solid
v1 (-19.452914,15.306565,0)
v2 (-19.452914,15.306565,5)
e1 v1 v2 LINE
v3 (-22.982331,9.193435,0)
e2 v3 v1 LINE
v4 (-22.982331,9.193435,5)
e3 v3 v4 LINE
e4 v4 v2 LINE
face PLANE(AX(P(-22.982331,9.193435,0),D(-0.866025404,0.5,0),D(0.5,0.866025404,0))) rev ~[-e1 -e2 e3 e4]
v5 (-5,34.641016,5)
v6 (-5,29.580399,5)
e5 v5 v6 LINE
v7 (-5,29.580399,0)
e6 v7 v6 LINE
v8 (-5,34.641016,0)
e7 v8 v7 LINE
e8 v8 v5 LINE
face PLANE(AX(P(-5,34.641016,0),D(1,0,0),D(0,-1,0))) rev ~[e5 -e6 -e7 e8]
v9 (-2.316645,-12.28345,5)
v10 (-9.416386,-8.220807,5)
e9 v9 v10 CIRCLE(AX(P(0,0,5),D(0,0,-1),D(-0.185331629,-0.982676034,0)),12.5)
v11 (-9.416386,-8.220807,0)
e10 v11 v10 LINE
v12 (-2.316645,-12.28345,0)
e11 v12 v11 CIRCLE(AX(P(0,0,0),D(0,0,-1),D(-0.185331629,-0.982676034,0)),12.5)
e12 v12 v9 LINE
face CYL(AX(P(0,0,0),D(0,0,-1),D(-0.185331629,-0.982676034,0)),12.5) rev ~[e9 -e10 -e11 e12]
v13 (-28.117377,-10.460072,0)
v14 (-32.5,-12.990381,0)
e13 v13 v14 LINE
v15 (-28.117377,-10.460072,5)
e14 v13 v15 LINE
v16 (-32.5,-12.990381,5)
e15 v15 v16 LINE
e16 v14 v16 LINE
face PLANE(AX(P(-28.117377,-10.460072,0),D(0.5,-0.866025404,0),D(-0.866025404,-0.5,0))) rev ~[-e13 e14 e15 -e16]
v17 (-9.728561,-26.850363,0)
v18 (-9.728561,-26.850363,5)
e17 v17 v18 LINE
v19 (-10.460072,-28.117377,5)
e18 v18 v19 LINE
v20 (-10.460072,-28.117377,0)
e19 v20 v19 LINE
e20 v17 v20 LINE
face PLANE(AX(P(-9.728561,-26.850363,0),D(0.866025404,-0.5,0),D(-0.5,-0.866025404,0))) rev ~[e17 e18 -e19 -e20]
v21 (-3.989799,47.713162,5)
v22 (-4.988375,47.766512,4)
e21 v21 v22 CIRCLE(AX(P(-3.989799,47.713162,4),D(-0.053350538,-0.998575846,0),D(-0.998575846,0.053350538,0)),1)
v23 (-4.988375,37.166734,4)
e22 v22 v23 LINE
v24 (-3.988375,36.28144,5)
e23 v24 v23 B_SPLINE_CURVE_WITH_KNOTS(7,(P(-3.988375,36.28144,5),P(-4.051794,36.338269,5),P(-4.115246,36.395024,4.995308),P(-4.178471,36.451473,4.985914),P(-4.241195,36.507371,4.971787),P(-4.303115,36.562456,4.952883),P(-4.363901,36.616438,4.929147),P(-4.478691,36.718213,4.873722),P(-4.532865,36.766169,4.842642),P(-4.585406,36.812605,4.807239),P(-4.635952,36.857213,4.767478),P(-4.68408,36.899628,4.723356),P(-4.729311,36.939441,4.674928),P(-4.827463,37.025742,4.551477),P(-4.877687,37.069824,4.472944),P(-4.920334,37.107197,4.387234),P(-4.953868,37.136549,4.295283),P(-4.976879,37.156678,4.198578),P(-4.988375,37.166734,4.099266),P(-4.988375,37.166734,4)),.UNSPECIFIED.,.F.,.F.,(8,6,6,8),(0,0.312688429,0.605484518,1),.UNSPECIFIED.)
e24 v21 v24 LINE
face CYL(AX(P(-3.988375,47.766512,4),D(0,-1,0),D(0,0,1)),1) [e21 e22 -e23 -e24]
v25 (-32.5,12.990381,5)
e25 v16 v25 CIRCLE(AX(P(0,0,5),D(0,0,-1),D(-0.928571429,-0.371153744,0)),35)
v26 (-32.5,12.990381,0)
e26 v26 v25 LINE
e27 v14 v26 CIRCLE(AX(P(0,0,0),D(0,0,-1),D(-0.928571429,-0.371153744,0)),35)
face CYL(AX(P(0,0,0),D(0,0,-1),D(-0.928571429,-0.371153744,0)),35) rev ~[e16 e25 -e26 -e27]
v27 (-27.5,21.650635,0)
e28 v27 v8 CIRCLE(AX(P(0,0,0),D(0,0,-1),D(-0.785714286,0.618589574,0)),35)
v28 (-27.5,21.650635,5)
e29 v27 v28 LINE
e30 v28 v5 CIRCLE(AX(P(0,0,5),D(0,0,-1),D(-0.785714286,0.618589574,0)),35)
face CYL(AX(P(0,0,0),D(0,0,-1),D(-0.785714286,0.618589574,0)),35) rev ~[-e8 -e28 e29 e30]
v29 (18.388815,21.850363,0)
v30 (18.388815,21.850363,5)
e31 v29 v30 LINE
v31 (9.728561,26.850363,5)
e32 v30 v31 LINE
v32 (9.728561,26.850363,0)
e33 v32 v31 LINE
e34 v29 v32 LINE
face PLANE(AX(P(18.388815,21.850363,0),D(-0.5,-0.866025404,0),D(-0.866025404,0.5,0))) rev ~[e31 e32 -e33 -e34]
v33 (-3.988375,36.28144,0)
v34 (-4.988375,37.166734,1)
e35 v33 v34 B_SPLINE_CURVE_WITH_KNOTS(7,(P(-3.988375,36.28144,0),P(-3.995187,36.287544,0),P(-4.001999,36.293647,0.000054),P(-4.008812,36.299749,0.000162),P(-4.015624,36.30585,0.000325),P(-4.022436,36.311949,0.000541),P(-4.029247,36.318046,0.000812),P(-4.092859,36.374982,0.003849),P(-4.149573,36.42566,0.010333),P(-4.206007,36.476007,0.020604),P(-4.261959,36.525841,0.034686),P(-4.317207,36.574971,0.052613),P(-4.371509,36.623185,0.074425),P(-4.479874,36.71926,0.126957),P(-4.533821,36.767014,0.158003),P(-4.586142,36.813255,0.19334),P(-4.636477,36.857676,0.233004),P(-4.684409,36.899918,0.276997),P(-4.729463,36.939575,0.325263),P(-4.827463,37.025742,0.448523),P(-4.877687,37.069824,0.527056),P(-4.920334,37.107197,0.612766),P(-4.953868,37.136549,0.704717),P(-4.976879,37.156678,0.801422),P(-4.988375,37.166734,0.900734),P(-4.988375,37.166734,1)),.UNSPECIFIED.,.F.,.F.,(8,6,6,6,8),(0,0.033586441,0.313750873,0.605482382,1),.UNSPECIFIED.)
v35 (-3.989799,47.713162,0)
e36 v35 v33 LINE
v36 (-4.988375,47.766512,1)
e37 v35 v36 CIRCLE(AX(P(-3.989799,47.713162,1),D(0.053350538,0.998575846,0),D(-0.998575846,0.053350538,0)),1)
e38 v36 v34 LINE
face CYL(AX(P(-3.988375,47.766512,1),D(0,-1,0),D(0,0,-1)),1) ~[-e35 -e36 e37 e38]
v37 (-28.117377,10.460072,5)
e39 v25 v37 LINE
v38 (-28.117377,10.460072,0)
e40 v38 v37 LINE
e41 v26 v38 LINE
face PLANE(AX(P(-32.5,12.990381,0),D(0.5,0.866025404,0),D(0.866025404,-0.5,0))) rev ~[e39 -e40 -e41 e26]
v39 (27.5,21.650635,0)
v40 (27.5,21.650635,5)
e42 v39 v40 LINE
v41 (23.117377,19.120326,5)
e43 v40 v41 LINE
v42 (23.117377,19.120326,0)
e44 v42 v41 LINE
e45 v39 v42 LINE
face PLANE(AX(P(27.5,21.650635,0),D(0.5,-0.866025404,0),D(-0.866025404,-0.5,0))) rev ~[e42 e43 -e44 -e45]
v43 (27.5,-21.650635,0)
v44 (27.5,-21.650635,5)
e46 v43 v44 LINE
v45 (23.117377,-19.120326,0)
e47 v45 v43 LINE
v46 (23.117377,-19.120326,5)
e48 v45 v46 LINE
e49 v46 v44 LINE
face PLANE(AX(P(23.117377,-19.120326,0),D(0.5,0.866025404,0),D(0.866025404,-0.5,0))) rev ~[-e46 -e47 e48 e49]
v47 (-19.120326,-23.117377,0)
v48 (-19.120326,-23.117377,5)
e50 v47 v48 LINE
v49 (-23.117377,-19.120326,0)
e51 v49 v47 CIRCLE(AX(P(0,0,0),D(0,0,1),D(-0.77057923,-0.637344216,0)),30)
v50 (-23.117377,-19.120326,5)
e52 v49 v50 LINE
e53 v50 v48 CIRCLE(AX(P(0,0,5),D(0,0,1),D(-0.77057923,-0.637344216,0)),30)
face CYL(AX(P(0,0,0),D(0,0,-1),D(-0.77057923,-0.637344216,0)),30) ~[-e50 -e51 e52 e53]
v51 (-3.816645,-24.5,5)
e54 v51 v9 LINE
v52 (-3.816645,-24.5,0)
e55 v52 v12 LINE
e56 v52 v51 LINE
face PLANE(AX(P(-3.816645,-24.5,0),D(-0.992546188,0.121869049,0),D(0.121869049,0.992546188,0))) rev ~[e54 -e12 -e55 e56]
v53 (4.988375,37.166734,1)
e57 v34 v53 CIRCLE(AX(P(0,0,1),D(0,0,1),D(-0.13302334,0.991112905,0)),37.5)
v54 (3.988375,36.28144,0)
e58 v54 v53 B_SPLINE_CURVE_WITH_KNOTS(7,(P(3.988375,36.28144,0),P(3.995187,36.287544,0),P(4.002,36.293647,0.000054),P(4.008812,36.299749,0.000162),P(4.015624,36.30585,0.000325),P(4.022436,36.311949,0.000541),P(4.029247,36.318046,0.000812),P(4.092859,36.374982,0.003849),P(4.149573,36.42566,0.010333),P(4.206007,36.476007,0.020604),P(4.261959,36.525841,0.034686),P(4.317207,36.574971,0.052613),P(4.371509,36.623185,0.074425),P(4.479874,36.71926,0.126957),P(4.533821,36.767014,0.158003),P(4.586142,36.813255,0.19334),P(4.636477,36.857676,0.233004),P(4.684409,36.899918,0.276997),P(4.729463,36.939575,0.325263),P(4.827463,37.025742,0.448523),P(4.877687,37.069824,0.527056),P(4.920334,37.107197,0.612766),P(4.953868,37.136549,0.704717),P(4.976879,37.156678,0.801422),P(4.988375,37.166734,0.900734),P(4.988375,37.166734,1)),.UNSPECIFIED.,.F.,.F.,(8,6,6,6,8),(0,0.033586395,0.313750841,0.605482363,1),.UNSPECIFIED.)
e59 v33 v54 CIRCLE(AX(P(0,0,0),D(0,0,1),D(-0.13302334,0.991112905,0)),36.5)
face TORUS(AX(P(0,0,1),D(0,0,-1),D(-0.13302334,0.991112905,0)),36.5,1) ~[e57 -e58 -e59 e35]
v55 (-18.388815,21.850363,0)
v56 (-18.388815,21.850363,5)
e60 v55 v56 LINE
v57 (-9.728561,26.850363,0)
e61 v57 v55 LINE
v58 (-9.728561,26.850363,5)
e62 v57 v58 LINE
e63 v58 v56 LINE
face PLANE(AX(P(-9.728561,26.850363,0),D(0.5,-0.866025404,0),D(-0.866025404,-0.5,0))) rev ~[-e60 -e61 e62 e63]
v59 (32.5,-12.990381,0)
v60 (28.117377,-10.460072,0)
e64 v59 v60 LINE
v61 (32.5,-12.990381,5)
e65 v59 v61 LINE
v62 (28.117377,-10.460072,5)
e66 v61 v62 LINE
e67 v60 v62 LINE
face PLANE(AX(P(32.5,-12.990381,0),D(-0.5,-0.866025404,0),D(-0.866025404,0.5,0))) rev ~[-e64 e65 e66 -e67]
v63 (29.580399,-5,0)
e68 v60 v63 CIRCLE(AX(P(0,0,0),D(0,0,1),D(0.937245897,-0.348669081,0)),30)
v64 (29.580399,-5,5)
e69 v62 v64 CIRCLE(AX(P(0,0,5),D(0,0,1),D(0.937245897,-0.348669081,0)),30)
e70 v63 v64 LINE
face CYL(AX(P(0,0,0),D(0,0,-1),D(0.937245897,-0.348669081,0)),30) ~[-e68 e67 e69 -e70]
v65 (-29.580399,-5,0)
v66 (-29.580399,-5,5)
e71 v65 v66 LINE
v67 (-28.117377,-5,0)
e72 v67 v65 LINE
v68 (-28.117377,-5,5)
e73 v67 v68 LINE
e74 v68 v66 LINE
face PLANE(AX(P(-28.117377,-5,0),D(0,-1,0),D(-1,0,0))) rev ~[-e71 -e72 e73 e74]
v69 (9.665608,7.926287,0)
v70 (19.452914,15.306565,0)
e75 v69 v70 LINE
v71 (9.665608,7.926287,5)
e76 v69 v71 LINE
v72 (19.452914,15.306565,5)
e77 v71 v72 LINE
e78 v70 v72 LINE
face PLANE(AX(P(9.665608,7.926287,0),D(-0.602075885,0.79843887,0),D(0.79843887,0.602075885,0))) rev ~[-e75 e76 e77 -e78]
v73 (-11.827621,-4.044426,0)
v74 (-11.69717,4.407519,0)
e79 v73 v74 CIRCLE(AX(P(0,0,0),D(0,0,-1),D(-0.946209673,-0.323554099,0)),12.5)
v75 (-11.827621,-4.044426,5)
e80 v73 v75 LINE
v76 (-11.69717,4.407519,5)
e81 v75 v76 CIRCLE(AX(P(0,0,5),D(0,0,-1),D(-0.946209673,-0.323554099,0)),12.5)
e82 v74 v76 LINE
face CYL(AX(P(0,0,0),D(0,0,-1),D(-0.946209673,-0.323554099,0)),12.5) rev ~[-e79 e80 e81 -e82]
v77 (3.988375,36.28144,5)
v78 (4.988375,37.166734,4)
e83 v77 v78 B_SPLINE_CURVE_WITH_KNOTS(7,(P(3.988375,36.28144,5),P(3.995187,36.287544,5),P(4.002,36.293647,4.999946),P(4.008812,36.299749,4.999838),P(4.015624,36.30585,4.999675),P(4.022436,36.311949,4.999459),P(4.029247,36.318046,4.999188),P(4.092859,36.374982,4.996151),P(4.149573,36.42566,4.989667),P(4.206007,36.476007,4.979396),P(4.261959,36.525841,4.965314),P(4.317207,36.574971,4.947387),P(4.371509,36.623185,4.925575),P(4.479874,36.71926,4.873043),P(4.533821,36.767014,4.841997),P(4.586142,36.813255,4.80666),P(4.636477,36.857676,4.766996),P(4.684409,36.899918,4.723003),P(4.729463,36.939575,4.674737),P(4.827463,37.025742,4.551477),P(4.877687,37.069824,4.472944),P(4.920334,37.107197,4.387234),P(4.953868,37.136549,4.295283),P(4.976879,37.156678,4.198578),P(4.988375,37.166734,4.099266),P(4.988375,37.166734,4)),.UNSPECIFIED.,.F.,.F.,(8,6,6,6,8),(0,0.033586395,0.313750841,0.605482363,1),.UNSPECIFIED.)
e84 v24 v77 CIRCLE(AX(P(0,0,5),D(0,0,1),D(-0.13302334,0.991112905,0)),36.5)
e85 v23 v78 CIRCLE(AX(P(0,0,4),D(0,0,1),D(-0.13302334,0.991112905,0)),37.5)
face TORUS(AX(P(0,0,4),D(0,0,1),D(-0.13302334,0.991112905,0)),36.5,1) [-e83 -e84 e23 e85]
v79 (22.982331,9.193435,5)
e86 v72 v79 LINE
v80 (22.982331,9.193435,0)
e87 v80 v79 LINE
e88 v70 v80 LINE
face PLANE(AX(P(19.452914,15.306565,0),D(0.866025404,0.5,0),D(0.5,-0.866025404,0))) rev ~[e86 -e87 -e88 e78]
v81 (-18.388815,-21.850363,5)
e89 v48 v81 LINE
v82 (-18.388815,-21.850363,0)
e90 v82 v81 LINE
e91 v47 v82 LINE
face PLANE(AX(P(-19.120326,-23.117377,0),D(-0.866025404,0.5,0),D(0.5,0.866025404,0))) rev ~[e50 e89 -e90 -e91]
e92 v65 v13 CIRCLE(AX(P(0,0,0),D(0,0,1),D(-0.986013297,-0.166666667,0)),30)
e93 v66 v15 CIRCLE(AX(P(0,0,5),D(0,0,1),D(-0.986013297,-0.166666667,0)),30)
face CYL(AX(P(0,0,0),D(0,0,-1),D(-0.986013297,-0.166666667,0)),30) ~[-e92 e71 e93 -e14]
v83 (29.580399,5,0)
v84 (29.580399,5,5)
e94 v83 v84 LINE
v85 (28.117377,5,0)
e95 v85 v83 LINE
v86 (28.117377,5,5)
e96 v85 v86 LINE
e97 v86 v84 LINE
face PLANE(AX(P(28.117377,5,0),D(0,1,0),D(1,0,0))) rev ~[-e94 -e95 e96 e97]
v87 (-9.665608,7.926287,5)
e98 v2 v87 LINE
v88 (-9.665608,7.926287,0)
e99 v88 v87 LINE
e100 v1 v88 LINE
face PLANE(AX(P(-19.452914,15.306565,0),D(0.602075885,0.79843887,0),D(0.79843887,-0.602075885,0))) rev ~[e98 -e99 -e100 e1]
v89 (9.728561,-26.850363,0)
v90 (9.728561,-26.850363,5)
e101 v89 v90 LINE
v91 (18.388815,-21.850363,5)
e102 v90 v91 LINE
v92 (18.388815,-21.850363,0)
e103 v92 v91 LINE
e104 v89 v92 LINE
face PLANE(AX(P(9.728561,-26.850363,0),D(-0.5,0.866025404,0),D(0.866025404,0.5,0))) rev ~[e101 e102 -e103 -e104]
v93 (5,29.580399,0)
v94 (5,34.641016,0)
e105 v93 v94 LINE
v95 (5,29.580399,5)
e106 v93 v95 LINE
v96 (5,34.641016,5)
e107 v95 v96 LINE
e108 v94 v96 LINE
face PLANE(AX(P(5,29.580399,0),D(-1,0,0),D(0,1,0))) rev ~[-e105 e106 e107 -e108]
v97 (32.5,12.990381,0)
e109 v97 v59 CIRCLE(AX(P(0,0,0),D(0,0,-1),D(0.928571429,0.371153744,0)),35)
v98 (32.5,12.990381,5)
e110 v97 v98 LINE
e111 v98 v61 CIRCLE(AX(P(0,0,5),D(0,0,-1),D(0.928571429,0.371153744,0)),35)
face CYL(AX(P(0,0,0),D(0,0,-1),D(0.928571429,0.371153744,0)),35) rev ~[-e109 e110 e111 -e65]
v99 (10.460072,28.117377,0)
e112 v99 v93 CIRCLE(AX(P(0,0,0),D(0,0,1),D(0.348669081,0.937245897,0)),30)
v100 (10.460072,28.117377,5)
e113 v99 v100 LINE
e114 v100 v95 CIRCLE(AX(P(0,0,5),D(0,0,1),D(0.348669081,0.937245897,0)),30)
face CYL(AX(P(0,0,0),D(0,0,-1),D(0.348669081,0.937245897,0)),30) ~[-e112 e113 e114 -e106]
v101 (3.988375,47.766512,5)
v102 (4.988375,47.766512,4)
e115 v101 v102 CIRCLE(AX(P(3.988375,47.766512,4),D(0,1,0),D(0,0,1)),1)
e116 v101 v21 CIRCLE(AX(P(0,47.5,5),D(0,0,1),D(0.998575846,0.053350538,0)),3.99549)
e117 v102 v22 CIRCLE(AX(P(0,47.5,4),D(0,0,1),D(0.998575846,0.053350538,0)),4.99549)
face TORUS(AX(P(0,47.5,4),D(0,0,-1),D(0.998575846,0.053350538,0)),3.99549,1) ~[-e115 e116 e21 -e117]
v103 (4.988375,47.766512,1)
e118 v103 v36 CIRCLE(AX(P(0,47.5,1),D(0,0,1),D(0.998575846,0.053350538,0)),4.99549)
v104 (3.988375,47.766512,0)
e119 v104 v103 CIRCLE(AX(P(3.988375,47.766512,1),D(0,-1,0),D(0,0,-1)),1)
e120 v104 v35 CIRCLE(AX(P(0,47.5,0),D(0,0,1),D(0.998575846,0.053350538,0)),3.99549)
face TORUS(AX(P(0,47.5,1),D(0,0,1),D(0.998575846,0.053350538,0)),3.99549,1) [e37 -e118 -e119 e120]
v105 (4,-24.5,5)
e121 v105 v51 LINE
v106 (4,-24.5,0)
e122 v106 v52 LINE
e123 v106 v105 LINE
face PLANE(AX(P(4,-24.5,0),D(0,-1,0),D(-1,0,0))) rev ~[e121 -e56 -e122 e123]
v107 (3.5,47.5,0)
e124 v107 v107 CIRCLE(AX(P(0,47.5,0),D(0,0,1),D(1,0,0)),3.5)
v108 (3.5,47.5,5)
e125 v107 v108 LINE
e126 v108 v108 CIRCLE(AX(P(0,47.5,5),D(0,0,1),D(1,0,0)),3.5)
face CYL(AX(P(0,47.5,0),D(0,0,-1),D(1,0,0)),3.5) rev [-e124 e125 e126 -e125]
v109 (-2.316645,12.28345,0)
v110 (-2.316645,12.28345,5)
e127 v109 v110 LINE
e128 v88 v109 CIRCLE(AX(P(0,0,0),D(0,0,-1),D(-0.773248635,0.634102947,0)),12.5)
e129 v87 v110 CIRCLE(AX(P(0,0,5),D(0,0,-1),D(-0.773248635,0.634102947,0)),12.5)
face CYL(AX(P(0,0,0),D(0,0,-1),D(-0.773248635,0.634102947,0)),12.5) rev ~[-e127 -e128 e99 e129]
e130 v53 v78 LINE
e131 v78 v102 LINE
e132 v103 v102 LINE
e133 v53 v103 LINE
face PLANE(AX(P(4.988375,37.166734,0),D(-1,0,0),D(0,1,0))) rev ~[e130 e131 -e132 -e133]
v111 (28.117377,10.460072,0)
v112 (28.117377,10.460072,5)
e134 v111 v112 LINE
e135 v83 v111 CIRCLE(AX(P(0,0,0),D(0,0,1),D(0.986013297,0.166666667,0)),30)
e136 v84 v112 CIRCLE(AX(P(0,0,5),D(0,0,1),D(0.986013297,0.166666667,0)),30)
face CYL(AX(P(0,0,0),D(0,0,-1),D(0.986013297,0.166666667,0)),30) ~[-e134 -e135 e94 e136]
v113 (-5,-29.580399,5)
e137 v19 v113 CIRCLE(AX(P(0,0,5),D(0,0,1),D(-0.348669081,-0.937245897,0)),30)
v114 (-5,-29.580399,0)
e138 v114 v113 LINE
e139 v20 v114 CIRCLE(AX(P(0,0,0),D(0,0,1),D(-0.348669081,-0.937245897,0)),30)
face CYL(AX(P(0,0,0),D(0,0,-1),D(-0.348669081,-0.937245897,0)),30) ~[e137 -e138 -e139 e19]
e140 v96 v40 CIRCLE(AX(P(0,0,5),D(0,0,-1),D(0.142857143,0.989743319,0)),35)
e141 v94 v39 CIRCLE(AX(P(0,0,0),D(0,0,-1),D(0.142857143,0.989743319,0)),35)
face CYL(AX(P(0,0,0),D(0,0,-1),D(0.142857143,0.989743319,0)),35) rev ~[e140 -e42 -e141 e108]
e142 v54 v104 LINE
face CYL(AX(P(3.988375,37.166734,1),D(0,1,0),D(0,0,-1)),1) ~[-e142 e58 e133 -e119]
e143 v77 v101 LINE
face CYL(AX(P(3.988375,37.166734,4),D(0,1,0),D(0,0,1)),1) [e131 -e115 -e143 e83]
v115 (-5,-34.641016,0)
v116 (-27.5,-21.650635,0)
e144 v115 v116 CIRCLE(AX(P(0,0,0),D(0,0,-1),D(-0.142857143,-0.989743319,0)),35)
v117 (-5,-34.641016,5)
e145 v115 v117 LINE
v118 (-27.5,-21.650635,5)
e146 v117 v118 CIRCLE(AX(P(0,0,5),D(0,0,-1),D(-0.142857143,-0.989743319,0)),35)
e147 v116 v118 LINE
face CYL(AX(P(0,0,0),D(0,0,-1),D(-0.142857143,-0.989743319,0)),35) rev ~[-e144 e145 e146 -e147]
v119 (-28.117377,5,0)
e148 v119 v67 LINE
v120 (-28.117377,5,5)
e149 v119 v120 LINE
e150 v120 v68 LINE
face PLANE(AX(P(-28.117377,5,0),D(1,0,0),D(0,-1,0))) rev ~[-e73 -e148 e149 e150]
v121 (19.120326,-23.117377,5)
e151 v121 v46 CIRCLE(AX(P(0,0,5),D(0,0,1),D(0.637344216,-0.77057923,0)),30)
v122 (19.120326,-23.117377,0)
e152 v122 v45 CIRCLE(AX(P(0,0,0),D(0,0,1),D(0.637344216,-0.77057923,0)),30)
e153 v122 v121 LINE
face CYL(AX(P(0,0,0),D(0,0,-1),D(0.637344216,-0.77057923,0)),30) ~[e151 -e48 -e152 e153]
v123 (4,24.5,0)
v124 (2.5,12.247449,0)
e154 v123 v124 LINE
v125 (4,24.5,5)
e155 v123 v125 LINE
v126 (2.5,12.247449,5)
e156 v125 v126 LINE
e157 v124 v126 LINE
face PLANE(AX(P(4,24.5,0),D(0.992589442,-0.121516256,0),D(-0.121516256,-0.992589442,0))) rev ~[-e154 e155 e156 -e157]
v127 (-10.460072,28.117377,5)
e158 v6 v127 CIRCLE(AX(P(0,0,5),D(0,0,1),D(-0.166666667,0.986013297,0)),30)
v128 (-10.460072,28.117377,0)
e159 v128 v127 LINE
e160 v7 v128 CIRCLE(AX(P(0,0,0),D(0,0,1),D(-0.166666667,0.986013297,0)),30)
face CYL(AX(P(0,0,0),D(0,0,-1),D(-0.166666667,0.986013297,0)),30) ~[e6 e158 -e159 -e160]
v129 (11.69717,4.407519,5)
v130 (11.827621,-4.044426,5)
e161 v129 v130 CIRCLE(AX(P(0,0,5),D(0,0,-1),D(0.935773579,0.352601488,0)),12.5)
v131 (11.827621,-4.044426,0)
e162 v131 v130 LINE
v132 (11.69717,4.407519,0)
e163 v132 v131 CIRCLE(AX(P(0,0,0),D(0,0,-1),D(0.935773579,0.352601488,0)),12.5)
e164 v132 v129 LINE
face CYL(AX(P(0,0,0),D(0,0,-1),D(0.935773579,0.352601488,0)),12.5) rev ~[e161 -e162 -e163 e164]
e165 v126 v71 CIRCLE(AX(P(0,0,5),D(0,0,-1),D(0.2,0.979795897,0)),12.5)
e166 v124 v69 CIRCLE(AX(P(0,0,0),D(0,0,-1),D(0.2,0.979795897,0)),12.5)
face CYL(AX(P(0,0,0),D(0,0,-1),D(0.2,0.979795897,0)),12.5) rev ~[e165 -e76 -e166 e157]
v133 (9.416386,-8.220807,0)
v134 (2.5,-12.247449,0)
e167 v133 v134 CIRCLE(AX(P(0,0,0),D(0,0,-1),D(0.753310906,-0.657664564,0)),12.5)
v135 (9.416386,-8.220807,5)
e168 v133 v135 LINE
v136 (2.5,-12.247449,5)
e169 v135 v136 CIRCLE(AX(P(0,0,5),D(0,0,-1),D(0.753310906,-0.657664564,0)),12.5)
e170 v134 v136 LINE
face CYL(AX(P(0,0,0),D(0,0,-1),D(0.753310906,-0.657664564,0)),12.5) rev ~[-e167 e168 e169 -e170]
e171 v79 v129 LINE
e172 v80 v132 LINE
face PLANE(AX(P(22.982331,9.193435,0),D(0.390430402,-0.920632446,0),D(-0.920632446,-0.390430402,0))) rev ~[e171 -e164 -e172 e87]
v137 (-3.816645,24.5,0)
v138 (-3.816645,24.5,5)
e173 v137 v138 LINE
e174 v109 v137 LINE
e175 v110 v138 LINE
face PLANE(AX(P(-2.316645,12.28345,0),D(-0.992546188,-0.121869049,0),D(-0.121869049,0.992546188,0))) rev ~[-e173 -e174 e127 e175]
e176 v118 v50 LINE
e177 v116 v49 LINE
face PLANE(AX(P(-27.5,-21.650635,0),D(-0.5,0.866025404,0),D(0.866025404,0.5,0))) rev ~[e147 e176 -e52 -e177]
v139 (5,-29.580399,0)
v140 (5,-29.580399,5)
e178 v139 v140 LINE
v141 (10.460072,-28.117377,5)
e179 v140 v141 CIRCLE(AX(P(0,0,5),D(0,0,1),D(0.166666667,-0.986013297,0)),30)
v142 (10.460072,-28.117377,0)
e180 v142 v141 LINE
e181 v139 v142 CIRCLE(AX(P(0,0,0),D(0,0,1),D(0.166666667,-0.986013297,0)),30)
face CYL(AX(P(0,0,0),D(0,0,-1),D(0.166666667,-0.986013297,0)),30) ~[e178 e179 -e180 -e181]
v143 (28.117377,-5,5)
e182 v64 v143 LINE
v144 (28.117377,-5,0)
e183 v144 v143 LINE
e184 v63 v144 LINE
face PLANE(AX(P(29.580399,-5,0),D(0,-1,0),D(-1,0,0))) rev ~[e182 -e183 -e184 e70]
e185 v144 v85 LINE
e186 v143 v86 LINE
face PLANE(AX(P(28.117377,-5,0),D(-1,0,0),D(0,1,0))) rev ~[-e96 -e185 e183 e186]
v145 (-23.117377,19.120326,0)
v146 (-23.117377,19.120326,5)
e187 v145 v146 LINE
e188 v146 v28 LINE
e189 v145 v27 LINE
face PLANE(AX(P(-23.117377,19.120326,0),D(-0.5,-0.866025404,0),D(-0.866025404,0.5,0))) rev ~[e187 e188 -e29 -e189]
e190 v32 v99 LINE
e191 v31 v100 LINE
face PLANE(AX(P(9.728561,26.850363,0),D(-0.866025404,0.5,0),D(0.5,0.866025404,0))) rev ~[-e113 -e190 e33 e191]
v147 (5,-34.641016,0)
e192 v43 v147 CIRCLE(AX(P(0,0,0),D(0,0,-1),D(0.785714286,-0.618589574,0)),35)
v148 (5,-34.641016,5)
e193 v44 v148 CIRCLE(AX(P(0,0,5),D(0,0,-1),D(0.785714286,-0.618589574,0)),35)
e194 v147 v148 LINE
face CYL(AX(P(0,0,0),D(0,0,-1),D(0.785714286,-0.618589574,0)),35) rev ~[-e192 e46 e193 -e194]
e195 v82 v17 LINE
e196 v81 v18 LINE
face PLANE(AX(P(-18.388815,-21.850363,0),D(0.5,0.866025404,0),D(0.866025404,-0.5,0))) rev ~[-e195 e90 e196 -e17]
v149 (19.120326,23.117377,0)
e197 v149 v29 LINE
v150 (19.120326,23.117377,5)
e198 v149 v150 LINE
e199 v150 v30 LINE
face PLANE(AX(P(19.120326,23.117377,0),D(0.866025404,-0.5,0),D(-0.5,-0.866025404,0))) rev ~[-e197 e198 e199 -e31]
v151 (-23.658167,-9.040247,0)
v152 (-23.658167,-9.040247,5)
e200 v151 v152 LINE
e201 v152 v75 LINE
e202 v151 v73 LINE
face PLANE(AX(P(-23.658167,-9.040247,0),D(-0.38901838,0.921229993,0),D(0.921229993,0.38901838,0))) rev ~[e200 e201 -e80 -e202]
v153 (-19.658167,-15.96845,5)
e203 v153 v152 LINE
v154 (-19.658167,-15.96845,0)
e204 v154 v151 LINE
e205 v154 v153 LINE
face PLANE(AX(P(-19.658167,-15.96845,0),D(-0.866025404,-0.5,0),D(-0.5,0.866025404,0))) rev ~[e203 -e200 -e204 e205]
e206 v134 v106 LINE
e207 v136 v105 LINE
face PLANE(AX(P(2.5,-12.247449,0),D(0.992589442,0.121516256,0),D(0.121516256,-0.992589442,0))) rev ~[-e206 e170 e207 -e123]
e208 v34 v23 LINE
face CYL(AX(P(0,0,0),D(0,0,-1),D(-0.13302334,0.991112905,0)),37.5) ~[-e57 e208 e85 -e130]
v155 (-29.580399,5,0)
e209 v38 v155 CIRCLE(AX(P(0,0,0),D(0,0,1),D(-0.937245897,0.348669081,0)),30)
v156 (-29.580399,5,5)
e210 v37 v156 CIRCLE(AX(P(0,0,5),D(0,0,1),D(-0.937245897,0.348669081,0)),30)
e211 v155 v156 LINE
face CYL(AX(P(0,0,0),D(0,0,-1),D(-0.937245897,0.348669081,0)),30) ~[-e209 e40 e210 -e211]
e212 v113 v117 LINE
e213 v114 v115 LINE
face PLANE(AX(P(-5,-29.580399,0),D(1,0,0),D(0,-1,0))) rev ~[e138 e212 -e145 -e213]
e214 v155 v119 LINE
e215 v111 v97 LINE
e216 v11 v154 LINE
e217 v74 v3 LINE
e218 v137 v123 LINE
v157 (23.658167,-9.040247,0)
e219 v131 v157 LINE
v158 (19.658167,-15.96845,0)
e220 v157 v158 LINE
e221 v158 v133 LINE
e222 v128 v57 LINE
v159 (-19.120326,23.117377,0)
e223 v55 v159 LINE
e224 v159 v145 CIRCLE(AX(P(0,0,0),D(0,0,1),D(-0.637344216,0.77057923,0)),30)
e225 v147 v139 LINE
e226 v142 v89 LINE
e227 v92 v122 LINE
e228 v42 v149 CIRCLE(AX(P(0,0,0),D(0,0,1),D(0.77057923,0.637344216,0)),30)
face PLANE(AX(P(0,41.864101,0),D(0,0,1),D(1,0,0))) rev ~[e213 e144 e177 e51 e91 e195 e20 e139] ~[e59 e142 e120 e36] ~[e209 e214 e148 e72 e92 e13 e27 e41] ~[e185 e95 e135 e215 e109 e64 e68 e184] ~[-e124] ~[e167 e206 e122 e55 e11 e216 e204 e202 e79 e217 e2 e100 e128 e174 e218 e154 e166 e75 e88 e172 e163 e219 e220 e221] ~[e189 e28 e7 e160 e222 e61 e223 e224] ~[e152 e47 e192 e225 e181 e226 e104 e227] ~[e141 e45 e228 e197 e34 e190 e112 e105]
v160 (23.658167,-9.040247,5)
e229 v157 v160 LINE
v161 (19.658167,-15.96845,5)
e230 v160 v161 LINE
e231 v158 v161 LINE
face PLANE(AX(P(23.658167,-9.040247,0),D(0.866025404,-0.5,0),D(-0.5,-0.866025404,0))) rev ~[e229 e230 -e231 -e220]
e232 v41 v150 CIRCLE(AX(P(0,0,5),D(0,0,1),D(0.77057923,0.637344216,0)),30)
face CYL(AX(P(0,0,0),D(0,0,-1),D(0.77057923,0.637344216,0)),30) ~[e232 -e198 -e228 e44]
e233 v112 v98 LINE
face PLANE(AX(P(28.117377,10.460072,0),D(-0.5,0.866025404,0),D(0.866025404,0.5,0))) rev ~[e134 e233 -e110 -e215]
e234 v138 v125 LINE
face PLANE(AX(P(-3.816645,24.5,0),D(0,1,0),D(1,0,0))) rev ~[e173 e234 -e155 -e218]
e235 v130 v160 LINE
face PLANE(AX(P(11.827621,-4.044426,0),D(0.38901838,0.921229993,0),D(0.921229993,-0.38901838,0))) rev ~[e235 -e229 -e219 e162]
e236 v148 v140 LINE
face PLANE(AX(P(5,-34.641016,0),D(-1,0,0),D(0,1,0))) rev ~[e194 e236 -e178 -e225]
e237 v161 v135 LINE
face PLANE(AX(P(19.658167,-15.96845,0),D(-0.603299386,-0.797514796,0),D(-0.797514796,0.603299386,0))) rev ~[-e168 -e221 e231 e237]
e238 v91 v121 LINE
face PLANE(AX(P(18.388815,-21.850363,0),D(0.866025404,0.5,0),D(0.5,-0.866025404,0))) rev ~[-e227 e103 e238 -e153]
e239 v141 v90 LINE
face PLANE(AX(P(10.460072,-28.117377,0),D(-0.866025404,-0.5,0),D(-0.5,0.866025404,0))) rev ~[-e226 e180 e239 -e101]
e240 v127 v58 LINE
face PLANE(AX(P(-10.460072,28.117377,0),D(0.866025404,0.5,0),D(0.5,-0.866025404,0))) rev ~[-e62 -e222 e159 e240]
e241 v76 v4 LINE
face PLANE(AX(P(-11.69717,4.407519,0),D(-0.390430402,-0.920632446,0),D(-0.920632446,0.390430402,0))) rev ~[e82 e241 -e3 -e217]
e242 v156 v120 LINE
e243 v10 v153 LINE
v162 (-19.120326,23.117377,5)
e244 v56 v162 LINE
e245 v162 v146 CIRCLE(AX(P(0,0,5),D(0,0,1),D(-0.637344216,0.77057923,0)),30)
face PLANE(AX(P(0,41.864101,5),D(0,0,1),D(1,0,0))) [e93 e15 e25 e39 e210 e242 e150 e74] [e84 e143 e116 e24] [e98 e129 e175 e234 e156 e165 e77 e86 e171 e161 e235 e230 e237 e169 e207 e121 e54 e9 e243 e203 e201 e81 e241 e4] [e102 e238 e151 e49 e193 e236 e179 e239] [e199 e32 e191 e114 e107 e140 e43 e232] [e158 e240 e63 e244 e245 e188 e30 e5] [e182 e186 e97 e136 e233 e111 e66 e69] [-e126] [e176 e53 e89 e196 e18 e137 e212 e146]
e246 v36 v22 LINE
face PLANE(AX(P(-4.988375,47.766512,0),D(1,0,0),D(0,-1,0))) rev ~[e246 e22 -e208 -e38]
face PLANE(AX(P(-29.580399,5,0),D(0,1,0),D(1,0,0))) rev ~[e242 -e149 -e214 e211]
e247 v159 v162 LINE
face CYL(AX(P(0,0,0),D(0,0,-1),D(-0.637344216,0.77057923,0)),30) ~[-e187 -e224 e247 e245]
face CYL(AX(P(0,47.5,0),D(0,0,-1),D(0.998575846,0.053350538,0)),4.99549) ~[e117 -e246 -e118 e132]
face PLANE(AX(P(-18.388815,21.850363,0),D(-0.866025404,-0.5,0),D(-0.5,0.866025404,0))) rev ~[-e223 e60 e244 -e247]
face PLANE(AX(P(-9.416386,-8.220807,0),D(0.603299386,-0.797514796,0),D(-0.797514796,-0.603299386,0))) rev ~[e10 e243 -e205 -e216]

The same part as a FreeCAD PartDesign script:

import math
import FreeCAD as App
import Part
import Sketcher
from FreeCAD import Vector
Q = App.Units.Quantity


def edges_at(feature, points):
    """Names of the edges that pass closest to the given points."""
    edges = feature.Shape.Edges
    near = lambda p: min(range(len(edges)), key=lambda i: edges[i].distToShape(Part.Vertex(*p))[0])
    return sorted({f"Edge{near(p) + 1}" for p in points})

doc = App.newDocument("Part")
params = doc.addObject("Spreadsheet::Sheet", "Params")
for row, (alias, value) in enumerate([
    ("sketch1_radius", "30 mm"),
    ("sketch1_radius2", "35 mm"),
    ("sketch1_radius3", "37.5 mm"),
    ("sketch1_radius4", "12.5 mm"),
    ("sketch1_height", "10 mm"),
    ("pad1_length", "5 mm"),
    ("sketch2_diameter", "7 mm"),
    ("sketch2_radius", "37.5 mm"),
    ("pad2_length", "5 mm"),
    ("fillet_radius", "1 mm"),
], start=1):
    params.set(f"A{row}", alias)
    params.set(f"B{row}", "=" + value)
    params.setAlias(f"B{row}", alias)

body = doc.addObject("PartDesign::Body", "Body")

# Sketch on XY plane
sketch1 = doc.addObject("Sketcher::SketchObject", "Sketch")
body.addObject(sketch1)
sketch1.AttachmentSupport = (doc.XY_Plane, [""])
sketch1.MapMode = "FlatFace"
sketch1.addGeometry([
    Part.ArcOfCircle(Part.Circle(Vector(0, 0, 0), Vector(0, 0, 1), 37.5), math.radians(98), math.radians(442)),  # 0
    Part.ArcOfCircle(Part.Circle(Vector(0, 0, 0), Vector(0, 0, 1), 37.5), math.radians(82.36), math.radians(97.64)),  # 1
    Part.ArcOfCircle(Part.Circle(Vector(0, 0, 0), Vector(0, 0, 1), 30), math.radians(-110.41), math.radians(-99.59)),  # 2
    Part.LineSegment(Vector(-5, -29.6, 0), Vector(-5, -34.6, 0)),  # 3
    Part.ArcOfCircle(Part.Circle(Vector(0, 0, 0), Vector(0, 0, 1), 35), math.radians(-142), math.radians(-98)),  # 4
    Part.LineSegment(Vector(-27.5, -21.7, 0), Vector(-23.1, -19.1, 0)),  # 5
    Part.ArcOfCircle(Part.Circle(Vector(0, 0, 0), Vector(0, 0, 1), 30), math.radians(-140.41), math.radians(-129.59)),  # 6
    Part.LineSegment(Vector(-19.1, -23.1, 0), Vector(-18.4, -21.9, 0)),  # 7
    Part.LineSegment(Vector(-18.4, -21.9, 0), Vector(-9.7, -26.9, 0)),  # 8
    Part.LineSegment(Vector(-9.7, -26.9, 0), Vector(-10.5, -28.1, 0)),  # 9
    Part.LineSegment(Vector(-28.1, -10.5, 0), Vector(-32.5, -13, 0)),  # 10
    Part.ArcOfCircle(Part.Circle(Vector(0, 0, 0), Vector(0, 0, 1), 35), math.radians(158), math.radians(202)),  # 11
    Part.LineSegment(Vector(-32.5, 13, 0), Vector(-28.1, 10.5, 0)),  # 12
    Part.ArcOfCircle(Part.Circle(Vector(0, 0, 0), Vector(0, 0, 1), 30), math.radians(159.59), math.radians(170.41)),  # 13
    Part.LineSegment(Vector(-29.6, 5, 0), Vector(-28.1, 5, 0)),  # 14
    Part.LineSegment(Vector(-28.1, 5, 0), Vector(-28.1, -5, 0)),  # 15
    Part.LineSegment(Vector(-28.1, -5, 0), Vector(-29.6, -5, 0)),  # 16
    Part.ArcOfCircle(Part.Circle(Vector(0, 0, 0), Vector(0, 0, 1), 30), math.radians(-170.41), math.radians(-159.59)),  # 17
    Part.LineSegment(Vector(5, -34.6, 0), Vector(5, -29.6, 0)),  # 18
    Part.ArcOfCircle(Part.Circle(Vector(0, 0, 0), Vector(0, 0, 1), 30), math.radians(-80.41), math.radians(-69.59)),  # 19
    Part.LineSegment(Vector(10.5, -28.1, 0), Vector(9.7, -26.9, 0)),  # 20
    Part.LineSegment(Vector(9.7, -26.9, 0), Vector(18.4, -21.9, 0)),  # 21
    Part.LineSegment(Vector(18.4, -21.9, 0), Vector(19.1, -23.1, 0)),  # 22
    Part.ArcOfCircle(Part.Circle(Vector(0, 0, 0), Vector(0, 0, 1), 30), math.radians(-50.41), math.radians(-39.59)),  # 23
    Part.LineSegment(Vector(23.1, -19.1, 0), Vector(27.5, -21.7, 0)),  # 24
    Part.ArcOfCircle(Part.Circle(Vector(0, 0, 0), Vector(0, 0, 1), 35), math.radians(-82), math.radians(-38)),  # 25
    Part.LineSegment(Vector(-5, 34.6, 0), Vector(-5, 29.6, 0)),  # 26
    Part.ArcOfCircle(Part.Circle(Vector(0, 0, 0), Vector(0, 0, 1), 30), math.radians(99.59), math.radians(110.41)),  # 27
    Part.LineSegment(Vector(-10.5, 28.1, 0), Vector(-9.7, 26.9, 0)),  # 28
    Part.LineSegment(Vector(-9.7, 26.9, 0), Vector(-18.4, 21.9, 0)),  # 29
    Part.LineSegment(Vector(-18.4, 21.9, 0), Vector(-19.1, 23.1, 0)),  # 30
    Part.ArcOfCircle(Part.Circle(Vector(0, 0, 0), Vector(0, 0, 1), 30), math.radians(129.59), math.radians(140.41)),  # 31
    Part.LineSegment(Vector(-23.1, 19.1, 0), Vector(-27.5, 21.7, 0)),  # 32
    Part.ArcOfCircle(Part.Circle(Vector(0, 0, 0), Vector(0, 0, 1), 35), math.radians(98), math.radians(142)),  # 33
    Part.LineSegment(Vector(-19.5, 15.3, 0), Vector(-9.7, 7.9, 0)),  # 34
    Part.ArcOfCircle(Part.Circle(Vector(0, 0, 0), Vector(0, 0, 1), 12.5), math.radians(101), math.radians(141)),  # 35
    Part.LineSegment(Vector(-2.3, 12.3, 0), Vector(-3.8, 24.5, 0)),  # 36
    Part.LineSegment(Vector(-3.8, 24.5, 0), Vector(4, 24.5, 0)),  # 37
    Part.LineSegment(Vector(4, 24.5, 0), Vector(2.5, 12.2, 0)),  # 38
    Part.ArcOfCircle(Part.Circle(Vector(0, 0, 0), Vector(0, 0, 1), 12.5), math.radians(39), math.radians(78)),  # 39
    Part.LineSegment(Vector(9.7, 7.9, 0), Vector(19.5, 15.3, 0)),  # 40
    Part.LineSegment(Vector(19.5, 15.3, 0), Vector(23, 9.2, 0)),  # 41
    Part.LineSegment(Vector(23, 9.2, 0), Vector(11.7, 4.4, 0)),  # 42
    Part.ArcOfCircle(Part.Circle(Vector(0, 0, 0), Vector(0, 0, 1), 12.5), math.radians(-19), math.radians(21)),  # 43
    Part.LineSegment(Vector(11.8, -4, 0), Vector(23.7, -9, 0)),  # 44
    Part.LineSegment(Vector(23.7, -9, 0), Vector(19.7, -16, 0)),  # 45
    Part.LineSegment(Vector(19.7, -16, 0), Vector(9.4, -8.2, 0)),  # 46
    Part.ArcOfCircle(Part.Circle(Vector(0, 0, 0), Vector(0, 0, 1), 12.5), math.radians(-78), math.radians(-41)),  # 47
    Part.LineSegment(Vector(2.5, -12.2, 0), Vector(4, -24.5, 0)),  # 48
    Part.LineSegment(Vector(4, -24.5, 0), Vector(-3.8, -24.5, 0)),  # 49
    Part.LineSegment(Vector(-3.8, -24.5, 0), Vector(-2.3, -12.3, 0)),  # 50
    Part.ArcOfCircle(Part.Circle(Vector(0, 0, 0), Vector(0, 0, 1), 12.5), math.radians(-139), math.radians(-101)),  # 51
    Part.LineSegment(Vector(-9.4, -8.2, 0), Vector(-19.7, -16, 0)),  # 52
    Part.LineSegment(Vector(-19.7, -16, 0), Vector(-23.7, -9, 0)),  # 53
    Part.LineSegment(Vector(-23.7, -9, 0), Vector(-11.8, -4, 0)),  # 54
    Part.ArcOfCircle(Part.Circle(Vector(0, 0, 0), Vector(0, 0, 1), 12.5), math.radians(159), math.radians(199)),  # 55
    Part.LineSegment(Vector(-11.7, 4.4, 0), Vector(-23, 9.2, 0)),  # 56
    Part.LineSegment(Vector(-23, 9.2, 0), Vector(-19.5, 15.3, 0)),  # 57
    Part.ArcOfCircle(Part.Circle(Vector(0, 0, 0), Vector(0, 0, 1), 30), math.radians(9.59), math.radians(20.41)),  # 58
    Part.LineSegment(Vector(28.1, 10.5, 0), Vector(32.5, 13, 0)),  # 59
    Part.ArcOfCircle(Part.Circle(Vector(0, 0, 0), Vector(0, 0, 1), 35), math.radians(-22), math.radians(22)),  # 60
    Part.LineSegment(Vector(32.5, -13, 0), Vector(28.1, -10.5, 0)),  # 61
    Part.ArcOfCircle(Part.Circle(Vector(0, 0, 0), Vector(0, 0, 1), 30), math.radians(-20.41), math.radians(-9.59)),  # 62
    Part.LineSegment(Vector(29.6, -5, 0), Vector(28.1, -5, 0)),  # 63
    Part.LineSegment(Vector(28.1, -5, 0), Vector(28.1, 5, 0)),  # 64
    Part.LineSegment(Vector(28.1, 5, 0), Vector(29.6, 5, 0)),  # 65
    Part.ArcOfCircle(Part.Circle(Vector(0, 0, 0), Vector(0, 0, 1), 30), math.radians(69.59), math.radians(80.41)),  # 66
    Part.LineSegment(Vector(5, 29.6, 0), Vector(5, 34.6, 0)),  # 67
    Part.ArcOfCircle(Part.Circle(Vector(0, 0, 0), Vector(0, 0, 1), 35), math.radians(38), math.radians(82)),  # 68
    Part.LineSegment(Vector(27.5, 21.7, 0), Vector(23.1, 19.1, 0)),  # 69
    Part.ArcOfCircle(Part.Circle(Vector(0, 0, 0), Vector(0, 0, 1), 30), math.radians(39.59), math.radians(50.41)),  # 70
    Part.LineSegment(Vector(19.1, 23.1, 0), Vector(18.4, 21.9, 0)),  # 71
    Part.LineSegment(Vector(18.4, 21.9, 0), Vector(9.7, 26.9, 0)),  # 72
    Part.LineSegment(Vector(9.7, 26.9, 0), Vector(10.5, 28.1, 0)),  # 73
], False)
sketch1.addConstraint([
    Sketcher.Constraint("Tangent", 0, 1, 1, 2),
    Sketcher.Constraint("Coincident", 1, 1, 0, 2),
    Sketcher.Constraint("Coincident", 2, 2, 3, 1),
    Sketcher.Constraint("Coincident", 3, 2, 4, 2),
    Sketcher.Constraint("Coincident", 4, 1, 5, 1),
    Sketcher.Constraint("Coincident", 5, 2, 6, 1),
    Sketcher.Constraint("Coincident", 6, 2, 7, 1),
    Sketcher.Constraint("Coincident", 7, 2, 8, 1),
    Sketcher.Constraint("Coincident", 8, 2, 9, 1),
    Sketcher.Constraint("Coincident", 9, 2, 2, 1),
    Sketcher.Constraint("Coincident", 10, 2, 11, 2),
    Sketcher.Constraint("Coincident", 11, 1, 12, 1),
    Sketcher.Constraint("Coincident", 12, 2, 13, 1),
    Sketcher.Constraint("Coincident", 13, 2, 14, 1),
    Sketcher.Constraint("Coincident", 14, 2, 15, 1),
    Sketcher.Constraint("Coincident", 15, 2, 16, 1),
    Sketcher.Constraint("Coincident", 16, 2, 17, 1),
    Sketcher.Constraint("Coincident", 17, 2, 10, 1),
    Sketcher.Constraint("Coincident", 18, 2, 19, 1),
    Sketcher.Constraint("Coincident", 19, 2, 20, 1),
    Sketcher.Constraint("Coincident", 20, 2, 21, 1),
    Sketcher.Constraint("Coincident", 21, 2, 22, 1),
    Sketcher.Constraint("Coincident", 22, 2, 23, 1),
    Sketcher.Constraint("Coincident", 23, 2, 24, 1),
    Sketcher.Constraint("Coincident", 24, 2, 25, 2),
    Sketcher.Constraint("Coincident", 25, 1, 18, 1),
    Sketcher.Constraint("Coincident", 26, 2, 27, 1),
    Sketcher.Constraint("Coincident", 27, 2, 28, 1),
    Sketcher.Constraint("Coincident", 28, 2, 29, 1),
    Sketcher.Constraint("Coincident", 29, 2, 30, 1),
    Sketcher.Constraint("Coincident", 30, 2, 31, 1),
    Sketcher.Constraint("Coincident", 31, 2, 32, 1),
    Sketcher.Constraint("Coincident", 32, 2, 33, 2),
    Sketcher.Constraint("Coincident", 33, 1, 26, 1),
    Sketcher.Constraint("Coincident", 34, 2, 35, 2),
    Sketcher.Constraint("Coincident", 35, 1, 36, 1),
    Sketcher.Constraint("Coincident", 36, 2, 37, 1),
    Sketcher.Constraint("Coincident", 37, 2, 38, 1),
    Sketcher.Constraint("Coincident", 38, 2, 39, 2),
    Sketcher.Constraint("Coincident", 39, 1, 40, 1),
    Sketcher.Constraint("Coincident", 40, 2, 41, 1),
    Sketcher.Constraint("Coincident", 41, 2, 42, 1),
    Sketcher.Constraint("Coincident", 42, 2, 43, 2),
    Sketcher.Constraint("Coincident", 43, 1, 44, 1),
    Sketcher.Constraint("Coincident", 44, 2, 45, 1),
    Sketcher.Constraint("Coincident", 45, 2, 46, 1),
    Sketcher.Constraint("Coincident", 46, 2, 47, 2),
    Sketcher.Constraint("Coincident", 47, 1, 48, 1),
    Sketcher.Constraint("Coincident", 48, 2, 49, 1),
    Sketcher.Constraint("Coincident", 49, 2, 50, 1),
    Sketcher.Constraint("Coincident", 50, 2, 51, 2),
    Sketcher.Constraint("Coincident", 51, 1, 52, 1),
    Sketcher.Constraint("Coincident", 52, 2, 53, 1),
    Sketcher.Constraint("Coincident", 53, 2, 54, 1),
    Sketcher.Constraint("Coincident", 54, 2, 55, 2),
    Sketcher.Constraint("Coincident", 55, 1, 56, 1),
    Sketcher.Constraint("Coincident", 56, 2, 57, 1),
    Sketcher.Constraint("Coincident", 57, 2, 34, 1),
    Sketcher.Constraint("Coincident", 58, 2, 59, 1),
    Sketcher.Constraint("Coincident", 59, 2, 60, 2),
    Sketcher.Constraint("Coincident", 60, 1, 61, 1),
    Sketcher.Constraint("Coincident", 61, 2, 62, 1),
    Sketcher.Constraint("Coincident", 62, 2, 63, 1),
    Sketcher.Constraint("Coincident", 63, 2, 64, 1),
    Sketcher.Constraint("Coincident", 64, 2, 65, 1),
    Sketcher.Constraint("Coincident", 65, 2, 58, 1),
    Sketcher.Constraint("Coincident", 66, 2, 67, 1),
    Sketcher.Constraint("Coincident", 67, 2, 68, 2),
    Sketcher.Constraint("Coincident", 68, 1, 69, 1),
    Sketcher.Constraint("Coincident", 69, 2, 70, 1),
    Sketcher.Constraint("Coincident", 70, 2, 71, 1),
    Sketcher.Constraint("Coincident", 71, 2, 72, 1),
    Sketcher.Constraint("Coincident", 72, 2, 73, 1),
    Sketcher.Constraint("Coincident", 73, 2, 66, 1),
    Sketcher.Constraint("Vertical", 3),
    Sketcher.Constraint("Horizontal", 14),
    Sketcher.Constraint("Vertical", 15),
    Sketcher.Constraint("Horizontal", 16),
    Sketcher.Constraint("Vertical", 18),
    Sketcher.Constraint("Vertical", 26),
    Sketcher.Constraint("Horizontal", 37),
    Sketcher.Constraint("Horizontal", 49),
    Sketcher.Constraint("Horizontal", 63),
    Sketcher.Constraint("Vertical", 64),
    Sketcher.Constraint("Horizontal", 65),
    Sketcher.Constraint("Vertical", 67),
    Sketcher.Constraint("Coincident", 0, 3, -1, 1),
    Sketcher.Constraint("Coincident", 2, 3, -1, 1),
    Sketcher.Constraint("Coincident", 4, 3, -1, 1),
    Sketcher.Constraint("Coincident", 6, 3, -1, 1),
    Sketcher.Constraint("Coincident", 11, 3, -1, 1),
    Sketcher.Constraint("Coincident", 13, 3, -1, 1),
    Sketcher.Constraint("Coincident", 17, 3, -1, 1),
    Sketcher.Constraint("Coincident", 19, 3, -1, 1),
    Sketcher.Constraint("Coincident", 23, 3, -1, 1),
    Sketcher.Constraint("Coincident", 25, 3, -1, 1),
    Sketcher.Constraint("Coincident", 27, 3, -1, 1),
    Sketcher.Constraint("Coincident", 31, 3, -1, 1),
    Sketcher.Constraint("Coincident", 33, 3, -1, 1),
    Sketcher.Constraint("Coincident", 35, 3, -1, 1),
    Sketcher.Constraint("Coincident", 39, 3, -1, 1),
    Sketcher.Constraint("Coincident", 43, 3, -1, 1),
    Sketcher.Constraint("Coincident", 47, 3, -1, 1),
    Sketcher.Constraint("Coincident", 51, 3, -1, 1),
    Sketcher.Constraint("Coincident", 55, 3, -1, 1),
    Sketcher.Constraint("Coincident", 58, 3, -1, 1),
    Sketcher.Constraint("Coincident", 60, 3, -1, 1),
    Sketcher.Constraint("Coincident", 62, 3, -1, 1),
    Sketcher.Constraint("Coincident", 66, 3, -1, 1),
    Sketcher.Constraint("Coincident", 68, 3, -1, 1),
    Sketcher.Constraint("Coincident", 70, 3, -1, 1),
    Sketcher.Constraint("Equal", 2, 6),
    Sketcher.Constraint("Equal", 4, 11),
    Sketcher.Constraint("Equal", 6, 13),
    Sketcher.Constraint("Equal", 13, 17),
    Sketcher.Constraint("Equal", 17, 19),
    Sketcher.Constraint("Equal", 19, 23),
    Sketcher.Constraint("Equal", 11, 25),
    Sketcher.Constraint("Equal", 23, 27),
    Sketcher.Constraint("Equal", 27, 31),
    Sketcher.Constraint("Equal", 25, 33),
    Sketcher.Constraint("Equal", 35, 39),
    Sketcher.Constraint("Equal", 39, 43),
    Sketcher.Constraint("Equal", 43, 47),
    Sketcher.Constraint("Equal", 47, 51),
    Sketcher.Constraint("Equal", 51, 55),
    Sketcher.Constraint("Equal", 31, 58),
    Sketcher.Constraint("Equal", 33, 60),
    Sketcher.Constraint("Equal", 58, 62),
    Sketcher.Constraint("Equal", 62, 66),
    Sketcher.Constraint("Equal", 60, 68),
    Sketcher.Constraint("Equal", 66, 70),
    Sketcher.Constraint("Symmetric", 20, 2, 28, 2, -1, 1),
    Sketcher.Constraint("Symmetric", 21, 2, 29, 2, -1, 1),
    Sketcher.Constraint("Symmetric", 14, 2, 63, 2, -1, 1),
    Sketcher.Constraint("Symmetric", 7, 2, 71, 2, -1, 1),
    Sketcher.Constraint("Symmetric", 8, 2, 72, 2, -1, 1),
    Sketcher.Constraint("Symmetric", 8, 2, 20, 2, -2),
    Sketcher.Constraint("Symmetric", 7, 2, 21, 2, -2),
    Sketcher.Constraint("Symmetric", 45, 2, 52, 2, -2),
    Sketcher.Constraint("Symmetric", 44, 2, 53, 2, -2),
    Sketcher.Constraint("Symmetric", 41, 2, 56, 2, -2),
    Sketcher.Constraint("Symmetric", 40, 2, 57, 2, -2),
    Sketcher.Constraint("Symmetric", 37, 2, 48, 2, -1),
    Sketcher.Constraint("Perpendicular", 7, 8),
    Sketcher.Constraint("Perpendicular", 8, 9),
    Sketcher.Constraint("Parallel", 5, 10),
    Sketcher.Constraint("Perpendicular", 9, 12),
    Sketcher.Constraint("Perpendicular", 10, 20),
    Sketcher.Constraint("Perpendicular", 20, 21),
    Sketcher.Constraint("Perpendicular", 21, 22),
    Sketcher.Constraint("Parallel", 12, 24),
    Sketcher.Constraint("Parallel", 22, 28),
    Sketcher.Constraint("Perpendicular", 29, 30),
    Sketcher.Constraint("Parallel", 24, 32),
    Sketcher.Constraint("Parallel", 30, 41),
    Sketcher.Constraint("Perpendicular", 32, 45),
    Sketcher.Constraint("Perpendicular", 53, 59),
    Sketcher.Constraint("Perpendicular", 57, 61),
    Sketcher.Constraint("Parallel", 59, 69),
    Sketcher.Constraint("Perpendicular", 61, 71),
    Sketcher.Constraint("Perpendicular", 72, 73),
    Sketcher.Constraint("Horizontal", 0, 1, 1, 1),
    Sketcher.Constraint("Horizontal", 2, 2, 18, 2),
    Sketcher.Constraint("Horizontal", 5, 2, 23, 2),
    Sketcher.Constraint("Horizontal", 34, 2, 39, 1),
    Sketcher.Constraint("Horizontal", 46, 2, 51, 1),
    Sketcher.Constraint("Horizontal", 43, 1, 54, 2),
    Sketcher.Constraint("Horizontal", 42, 2, 55, 1),
    Sketcher.Constraint("Horizontal", 12, 2, 58, 2),
    Sketcher.Constraint("Horizontal", 10, 2, 60, 1),
    Sketcher.Constraint("Horizontal", 16, 2, 62, 2),
    Sketcher.Constraint("Horizontal", 14, 2, 64, 2),
    Sketcher.Constraint("Horizontal", 26, 2, 66, 2),
    Sketcher.Constraint("Horizontal", 32, 2, 68, 1),
    Sketcher.Constraint("Vertical", 10, 2, 11, 1),
    Sketcher.Constraint("Vertical", 12, 2, 14, 2),
    Sketcher.Constraint("Vertical", 3, 2, 26, 2),
    Sketcher.Constraint("Vertical", 5, 2, 31, 2),
    Sketcher.Constraint("Vertical", 38, 2, 47, 1),
    Sketcher.Constraint("Vertical", 36, 2, 49, 2),
    Sketcher.Constraint("Vertical", 35, 1, 50, 2),
    Sketcher.Constraint("Equal", 7, 9),
    Sketcher.Constraint("Equal", 5, 10),
    Sketcher.Constraint("Equal", 40, 42),
    Sketcher.Constraint("Equal", 44, 46),
    Sketcher.Constraint("Radius", 2, Q("30 mm")),
    Sketcher.Constraint("Radius", 4, Q("35 mm")),
    Sketcher.Constraint("Radius", 0, Q("37.5 mm")),
    Sketcher.Constraint("Radius", 35, Q("12.5 mm")),
    Sketcher.Constraint("DistanceY", 15, 2, 15, 1, Q("10 mm")),
    Sketcher.Constraint("Angle", 5, Q("30 deg")),
    Sketcher.Constraint("Angle", 36, Q("96.999983 deg")),
    Sketcher.Constraint("Distance", 8, Q("10 mm")),
    Sketcher.Constraint("Distance", 45, Q("8 mm")),
    Sketcher.Constraint("DistanceX", 2, 2, -1, 1, Q("5 mm")),
    Sketcher.Constraint("DistanceX", -1, 1, 37, 2, Q("4 mm")),
    Sketcher.Constraint("DistanceX", 4, 1, -1, 1, Q("27.5 mm")),
    Sketcher.Constraint("DistanceY", -1, 1, 36, 2, Q("24.5 mm")),
    Sketcher.Constraint("DistanceX", -1, 1, 38, 2, Q("2.5 mm")),
    Sketcher.Constraint("Distance", 44, Q("12.84212 mm")),
    Sketcher.Constraint("DistanceX", 37, 1, 37, 2, Q("7.816645 mm")),
    Sketcher.Constraint("DistanceX", 8, 2, -1, 1, Q("9.728561 mm")),
    Sketcher.Constraint("DistanceX", -1, 1, 41, 2, Q("22.982331 mm")),
    Sketcher.Constraint("DistanceX", -1, 1, 42, 2, Q("11.69717 mm")),
    Sketcher.Constraint("DistanceX", -1, 1, 43, 1, Q("11.827621 mm")),
    Sketcher.Constraint("DistanceY", 45, 2, -1, 1, Q("15.96845 mm")),
    Sketcher.Constraint("Distance", 34, Q("12.258053 mm")),
    Sketcher.Constraint("Distance", 41, Q("7.058834 mm")),
    Sketcher.Constraint("DistanceX", 0, 1, -1, 1, Q("4.988375 mm")),
])
sketch1.setExpression("Constraints[186]", "Params.sketch1_radius")
sketch1.setExpression("Constraints[187]", "Params.sketch1_radius2")
sketch1.setExpression("Constraints[188]", "Params.sketch1_radius3")
sketch1.setExpression("Constraints[189]", "Params.sketch1_radius4")
sketch1.setExpression("Constraints[190]", "Params.sketch1_height")
pad1 = doc.addObject("PartDesign::Pad", "Pad")
body.addObject(pad1)
pad1.Profile = sketch1
pad1.setExpression("Length", "Params.pad1_length")

# Sketch on XY plane
sketch2 = doc.addObject("Sketcher::SketchObject", "Sketch001")
body.addObject(sketch2)
sketch2.AttachmentSupport = (doc.XY_Plane, [""])
sketch2.MapMode = "FlatFace"
sketch2.addGeometry([
    Part.ArcOfCircle(Part.Circle(Vector(0, 0, 0), Vector(0, 0, 1), 37.5), math.radians(82.36), math.radians(97.64)),  # 0
    Part.LineSegment(Vector(5, 37.2, 0), Vector(5, 47.8, 0)),  # 1
    Part.ArcOfCircle(Part.Circle(Vector(0, 47.5, 0), Vector(0, 0, 1), 5), math.radians(3), math.radians(177)),  # 2
    Part.LineSegment(Vector(-5, 47.8, 0), Vector(-5, 37.2, 0)),  # 3
    Part.Circle(Vector(0, 47.5, 0), Vector(0, 0, 1), 3.5),  # 4
], False)
sketch2.addConstraint([
    Sketcher.Constraint("Coincident", 0, 1, 1, 1),
    Sketcher.Constraint("Coincident", 1, 2, 2, 1),
    Sketcher.Constraint("Coincident", 2, 2, 3, 1),
    Sketcher.Constraint("Coincident", 3, 2, 0, 2),
    Sketcher.Constraint("Vertical", 1),
    Sketcher.Constraint("Vertical", 3),
    Sketcher.Constraint("Coincident", 0, 3, -1, 1),
    Sketcher.Constraint("Coincident", 4, 3, 2, 3),
    Sketcher.Constraint("Symmetric", 1, 2, 2, 2, -2),
    Sketcher.Constraint("Diameter", 4, Q("7 mm")),
    Sketcher.Constraint("Radius", 0, Q("37.5 mm")),
    Sketcher.Constraint("DistanceY", -1, 1, 2, 3, Q("47.5 mm")),
    Sketcher.Constraint("Radius", 2, Q("4.99549 mm")),
    Sketcher.Constraint("DistanceY", 1, 1, 1, 2, Q("10.599778 mm")),
])
sketch2.setExpression("Constraints[9]", "Params.sketch2_diameter")
sketch2.setExpression("Constraints[10]", "Params.sketch2_radius")
pad2 = doc.addObject("PartDesign::Pad", "Pad001")
body.addObject(pad2)
pad2.Profile = sketch2
pad2.setExpression("Length", "Params.pad2_length")
doc.recompute()

fillet = doc.addObject("PartDesign::Fillet", "Fillet")
body.addObject(fillet)
fillet.Base = (pad2, edges_at(pad2, [
    (4.988, 42.467, 0),
    (-4.988, 42.467, 0),
    (4.988, 42.467, 5),
    (-4.988, 42.467, 5),
    (0, 52.495, 5),
    (0, 52.495, 0),
    (0, -37.5, 0),
    (0, -37.5, 5),
]))
fillet.setExpression("Radius", "Params.fillet_radius")

doc.recompute()
